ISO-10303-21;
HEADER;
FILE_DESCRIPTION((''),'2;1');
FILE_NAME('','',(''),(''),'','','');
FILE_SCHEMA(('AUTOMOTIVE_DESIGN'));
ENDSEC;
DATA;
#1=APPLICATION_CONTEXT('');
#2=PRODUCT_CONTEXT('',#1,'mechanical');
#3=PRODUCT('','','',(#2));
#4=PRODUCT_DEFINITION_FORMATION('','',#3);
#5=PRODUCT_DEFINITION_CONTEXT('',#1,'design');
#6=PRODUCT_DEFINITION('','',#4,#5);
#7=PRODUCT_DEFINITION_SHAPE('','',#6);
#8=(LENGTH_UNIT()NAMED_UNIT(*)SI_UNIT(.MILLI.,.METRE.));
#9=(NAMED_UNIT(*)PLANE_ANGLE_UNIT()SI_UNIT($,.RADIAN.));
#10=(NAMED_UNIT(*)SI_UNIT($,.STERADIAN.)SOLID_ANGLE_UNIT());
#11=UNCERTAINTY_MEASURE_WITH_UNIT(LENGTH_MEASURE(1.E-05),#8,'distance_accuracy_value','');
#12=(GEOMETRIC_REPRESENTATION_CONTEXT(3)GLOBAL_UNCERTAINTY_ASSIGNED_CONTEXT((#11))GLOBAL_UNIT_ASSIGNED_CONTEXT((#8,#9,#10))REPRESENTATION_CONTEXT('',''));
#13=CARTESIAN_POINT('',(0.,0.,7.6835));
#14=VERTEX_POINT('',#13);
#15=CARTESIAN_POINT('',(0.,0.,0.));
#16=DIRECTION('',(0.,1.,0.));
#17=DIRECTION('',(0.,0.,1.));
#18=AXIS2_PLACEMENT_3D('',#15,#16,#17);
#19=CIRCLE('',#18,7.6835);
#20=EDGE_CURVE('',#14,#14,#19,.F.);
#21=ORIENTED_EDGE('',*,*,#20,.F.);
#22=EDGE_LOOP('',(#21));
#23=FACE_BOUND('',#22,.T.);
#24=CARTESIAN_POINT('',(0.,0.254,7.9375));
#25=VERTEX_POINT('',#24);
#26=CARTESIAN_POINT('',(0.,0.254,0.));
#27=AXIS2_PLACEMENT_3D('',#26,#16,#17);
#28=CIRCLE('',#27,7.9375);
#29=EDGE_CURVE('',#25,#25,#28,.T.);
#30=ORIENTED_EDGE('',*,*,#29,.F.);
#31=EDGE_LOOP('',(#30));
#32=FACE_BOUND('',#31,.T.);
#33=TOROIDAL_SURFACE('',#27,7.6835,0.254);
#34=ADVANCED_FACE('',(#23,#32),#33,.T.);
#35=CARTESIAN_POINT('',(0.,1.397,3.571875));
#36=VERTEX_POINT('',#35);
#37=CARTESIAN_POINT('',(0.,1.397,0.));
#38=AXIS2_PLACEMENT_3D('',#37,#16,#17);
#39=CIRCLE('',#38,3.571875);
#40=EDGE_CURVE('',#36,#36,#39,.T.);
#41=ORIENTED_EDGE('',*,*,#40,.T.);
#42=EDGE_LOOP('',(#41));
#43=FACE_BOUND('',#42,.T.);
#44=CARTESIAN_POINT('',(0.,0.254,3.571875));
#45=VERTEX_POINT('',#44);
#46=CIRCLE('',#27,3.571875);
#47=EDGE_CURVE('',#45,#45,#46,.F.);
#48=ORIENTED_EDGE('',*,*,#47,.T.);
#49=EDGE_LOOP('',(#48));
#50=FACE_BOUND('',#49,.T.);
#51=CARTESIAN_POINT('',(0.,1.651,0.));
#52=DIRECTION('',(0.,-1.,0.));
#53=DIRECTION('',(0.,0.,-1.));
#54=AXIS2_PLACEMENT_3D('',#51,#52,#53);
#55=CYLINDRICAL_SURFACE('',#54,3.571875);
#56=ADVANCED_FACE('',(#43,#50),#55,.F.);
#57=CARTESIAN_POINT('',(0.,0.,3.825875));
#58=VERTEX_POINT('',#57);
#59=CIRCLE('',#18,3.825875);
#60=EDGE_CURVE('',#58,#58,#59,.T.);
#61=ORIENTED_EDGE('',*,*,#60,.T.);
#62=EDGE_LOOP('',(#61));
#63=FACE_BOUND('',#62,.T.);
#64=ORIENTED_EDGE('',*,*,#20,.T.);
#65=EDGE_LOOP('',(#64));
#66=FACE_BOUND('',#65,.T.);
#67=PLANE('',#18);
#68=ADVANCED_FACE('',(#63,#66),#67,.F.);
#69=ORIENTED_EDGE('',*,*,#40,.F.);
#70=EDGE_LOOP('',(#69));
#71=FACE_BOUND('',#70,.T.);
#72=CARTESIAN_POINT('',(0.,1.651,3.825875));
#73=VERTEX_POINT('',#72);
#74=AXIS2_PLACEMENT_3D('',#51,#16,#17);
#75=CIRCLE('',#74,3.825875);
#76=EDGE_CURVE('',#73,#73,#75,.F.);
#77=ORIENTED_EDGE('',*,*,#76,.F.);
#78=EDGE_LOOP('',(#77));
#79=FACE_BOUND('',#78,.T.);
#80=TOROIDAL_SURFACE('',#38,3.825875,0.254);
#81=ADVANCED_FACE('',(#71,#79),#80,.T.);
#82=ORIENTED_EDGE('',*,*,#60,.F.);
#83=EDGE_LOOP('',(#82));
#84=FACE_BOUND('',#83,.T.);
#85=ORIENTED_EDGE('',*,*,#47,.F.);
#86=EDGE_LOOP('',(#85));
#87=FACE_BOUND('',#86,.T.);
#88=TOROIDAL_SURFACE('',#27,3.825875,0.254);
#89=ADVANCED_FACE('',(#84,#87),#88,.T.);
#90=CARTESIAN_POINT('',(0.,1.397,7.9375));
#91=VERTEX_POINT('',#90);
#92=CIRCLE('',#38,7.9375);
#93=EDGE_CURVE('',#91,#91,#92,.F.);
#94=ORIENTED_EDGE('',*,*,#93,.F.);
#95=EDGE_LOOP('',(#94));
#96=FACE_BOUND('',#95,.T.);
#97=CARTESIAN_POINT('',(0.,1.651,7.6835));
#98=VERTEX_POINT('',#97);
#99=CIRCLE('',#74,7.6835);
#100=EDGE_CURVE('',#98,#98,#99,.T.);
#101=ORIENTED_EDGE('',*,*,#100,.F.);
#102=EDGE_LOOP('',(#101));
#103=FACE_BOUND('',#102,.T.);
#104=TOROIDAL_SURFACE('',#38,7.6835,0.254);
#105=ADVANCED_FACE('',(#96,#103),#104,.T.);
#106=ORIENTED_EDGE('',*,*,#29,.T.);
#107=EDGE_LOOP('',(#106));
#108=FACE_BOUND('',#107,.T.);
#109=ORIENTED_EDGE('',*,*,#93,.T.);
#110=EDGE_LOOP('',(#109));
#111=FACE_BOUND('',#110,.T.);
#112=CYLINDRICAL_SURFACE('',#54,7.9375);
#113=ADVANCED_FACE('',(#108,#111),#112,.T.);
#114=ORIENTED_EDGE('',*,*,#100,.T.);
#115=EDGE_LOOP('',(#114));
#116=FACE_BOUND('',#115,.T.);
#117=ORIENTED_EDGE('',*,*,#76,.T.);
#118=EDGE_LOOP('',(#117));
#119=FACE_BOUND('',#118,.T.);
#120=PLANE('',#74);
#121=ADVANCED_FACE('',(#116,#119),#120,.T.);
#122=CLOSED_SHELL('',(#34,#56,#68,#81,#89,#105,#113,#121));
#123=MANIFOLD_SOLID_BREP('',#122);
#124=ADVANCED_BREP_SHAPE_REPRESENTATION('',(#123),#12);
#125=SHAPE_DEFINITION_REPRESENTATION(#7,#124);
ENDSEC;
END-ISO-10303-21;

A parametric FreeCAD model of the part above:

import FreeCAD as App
import Part
import Sketcher

V = App.Vector
Q = App.Units.Quantity


def edges_at(feature, points):
    """Names of the edges that pass closest to the given points."""
    edges = feature.Shape.Edges
    near = lambda p: min(range(len(edges)), key=lambda i: edges[i].distToShape(Part.Vertex(*p))[0])
    return sorted({f"Edge{near(p) + 1}" for p in points})

doc = App.newDocument("Part")
body = doc.addObject("PartDesign::Body", "Body")

# Sketch on XZ plane
sketch1 = doc.addObject("Sketcher::SketchObject", "Sketch")
body.addObject(sketch1)
sketch1.AttachmentSupport = (doc.XZ_Plane, [""])
sketch1.MapMode = "FlatFace"
sketch1.addGeometry([
    Part.Circle(V(0, 0, 0), V(0, 0, 1), 7.9),
    Part.Circle(V(0, 0, 0), V(0, 0, 1), 3.6),
], False)
sketch1.addConstraint([
    Sketcher.Constraint("Coincident", 0, 3, -1, 1),
    Sketcher.Constraint("Coincident", 1, 3, -1, 1),
    Sketcher.Constraint("Diameter", 0, Q("0.625 in")),
    Sketcher.Constraint("Diameter", 1, Q("0.28125 in")),
])
pad1 = doc.addObject("PartDesign::Pad", "Pad")
body.addObject(pad1)
pad1.Profile = sketch1
pad1.Length = Q("0.065 in")
pad1.Reversed = True
doc.recompute()

fillet = doc.addObject("PartDesign::Fillet", "Fillet")
body.addObject(fillet)
fillet.Base = (pad1, edges_at(pad1, [
    (0, 0, -7.938),
    (0, 1.651, -7.938),
    (0, 0, -3.572),
    (0, 1.651, -3.572),
]))
fillet.Radius = Q("0.01 in")

doc.recompute()
